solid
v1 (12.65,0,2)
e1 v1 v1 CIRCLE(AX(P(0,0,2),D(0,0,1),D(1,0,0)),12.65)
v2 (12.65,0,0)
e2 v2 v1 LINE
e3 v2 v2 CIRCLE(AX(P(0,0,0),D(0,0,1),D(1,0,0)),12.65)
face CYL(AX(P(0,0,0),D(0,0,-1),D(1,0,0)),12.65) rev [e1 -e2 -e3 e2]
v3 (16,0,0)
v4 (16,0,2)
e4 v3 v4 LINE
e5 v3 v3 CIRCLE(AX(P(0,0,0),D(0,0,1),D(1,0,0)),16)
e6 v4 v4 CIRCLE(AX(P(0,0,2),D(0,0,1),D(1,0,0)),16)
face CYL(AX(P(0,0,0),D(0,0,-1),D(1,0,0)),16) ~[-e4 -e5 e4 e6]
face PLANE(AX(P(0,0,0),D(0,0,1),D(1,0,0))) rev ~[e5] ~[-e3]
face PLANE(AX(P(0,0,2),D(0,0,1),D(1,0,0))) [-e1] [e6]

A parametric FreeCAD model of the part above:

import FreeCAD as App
import Part
import Sketcher
from FreeCAD import Vector
Q = App.Units.Quantity

doc = App.newDocument("Part")
body = doc.addObject("PartDesign::Body", "Body")

sketch1 = body.newObject("Sketcher::SketchObject", "Sketch")
sketch1.AttachmentSupport = (doc.getObject("XY_Plane"), [""])
sketch1.MapMode = "FlatFace"
sketch1.addGeometry([
    Part.Circle(Vector(0, 0, 0), Vector(0, 0, 1), 16),
    Part.Circle(Vector(0, 0, 0), Vector(0, 0, 1), 12.65),
], False)
sketch1.addConstraint([
    Sketcher.Constraint("Coincident", 0, 3, -1, 1),
    Sketcher.Constraint("Coincident", 1, 3, -1, 1),
    Sketcher.Constraint("Diameter", 0, Q("32 mm")),
    Sketcher.Constraint("Diameter", 1, Q("25.3 mm")),
])
pad1 = body.newObject("PartDesign::Pad", "Pad")
pad1.Profile = sketch1
pad1.Length = 2

doc.recompute()
